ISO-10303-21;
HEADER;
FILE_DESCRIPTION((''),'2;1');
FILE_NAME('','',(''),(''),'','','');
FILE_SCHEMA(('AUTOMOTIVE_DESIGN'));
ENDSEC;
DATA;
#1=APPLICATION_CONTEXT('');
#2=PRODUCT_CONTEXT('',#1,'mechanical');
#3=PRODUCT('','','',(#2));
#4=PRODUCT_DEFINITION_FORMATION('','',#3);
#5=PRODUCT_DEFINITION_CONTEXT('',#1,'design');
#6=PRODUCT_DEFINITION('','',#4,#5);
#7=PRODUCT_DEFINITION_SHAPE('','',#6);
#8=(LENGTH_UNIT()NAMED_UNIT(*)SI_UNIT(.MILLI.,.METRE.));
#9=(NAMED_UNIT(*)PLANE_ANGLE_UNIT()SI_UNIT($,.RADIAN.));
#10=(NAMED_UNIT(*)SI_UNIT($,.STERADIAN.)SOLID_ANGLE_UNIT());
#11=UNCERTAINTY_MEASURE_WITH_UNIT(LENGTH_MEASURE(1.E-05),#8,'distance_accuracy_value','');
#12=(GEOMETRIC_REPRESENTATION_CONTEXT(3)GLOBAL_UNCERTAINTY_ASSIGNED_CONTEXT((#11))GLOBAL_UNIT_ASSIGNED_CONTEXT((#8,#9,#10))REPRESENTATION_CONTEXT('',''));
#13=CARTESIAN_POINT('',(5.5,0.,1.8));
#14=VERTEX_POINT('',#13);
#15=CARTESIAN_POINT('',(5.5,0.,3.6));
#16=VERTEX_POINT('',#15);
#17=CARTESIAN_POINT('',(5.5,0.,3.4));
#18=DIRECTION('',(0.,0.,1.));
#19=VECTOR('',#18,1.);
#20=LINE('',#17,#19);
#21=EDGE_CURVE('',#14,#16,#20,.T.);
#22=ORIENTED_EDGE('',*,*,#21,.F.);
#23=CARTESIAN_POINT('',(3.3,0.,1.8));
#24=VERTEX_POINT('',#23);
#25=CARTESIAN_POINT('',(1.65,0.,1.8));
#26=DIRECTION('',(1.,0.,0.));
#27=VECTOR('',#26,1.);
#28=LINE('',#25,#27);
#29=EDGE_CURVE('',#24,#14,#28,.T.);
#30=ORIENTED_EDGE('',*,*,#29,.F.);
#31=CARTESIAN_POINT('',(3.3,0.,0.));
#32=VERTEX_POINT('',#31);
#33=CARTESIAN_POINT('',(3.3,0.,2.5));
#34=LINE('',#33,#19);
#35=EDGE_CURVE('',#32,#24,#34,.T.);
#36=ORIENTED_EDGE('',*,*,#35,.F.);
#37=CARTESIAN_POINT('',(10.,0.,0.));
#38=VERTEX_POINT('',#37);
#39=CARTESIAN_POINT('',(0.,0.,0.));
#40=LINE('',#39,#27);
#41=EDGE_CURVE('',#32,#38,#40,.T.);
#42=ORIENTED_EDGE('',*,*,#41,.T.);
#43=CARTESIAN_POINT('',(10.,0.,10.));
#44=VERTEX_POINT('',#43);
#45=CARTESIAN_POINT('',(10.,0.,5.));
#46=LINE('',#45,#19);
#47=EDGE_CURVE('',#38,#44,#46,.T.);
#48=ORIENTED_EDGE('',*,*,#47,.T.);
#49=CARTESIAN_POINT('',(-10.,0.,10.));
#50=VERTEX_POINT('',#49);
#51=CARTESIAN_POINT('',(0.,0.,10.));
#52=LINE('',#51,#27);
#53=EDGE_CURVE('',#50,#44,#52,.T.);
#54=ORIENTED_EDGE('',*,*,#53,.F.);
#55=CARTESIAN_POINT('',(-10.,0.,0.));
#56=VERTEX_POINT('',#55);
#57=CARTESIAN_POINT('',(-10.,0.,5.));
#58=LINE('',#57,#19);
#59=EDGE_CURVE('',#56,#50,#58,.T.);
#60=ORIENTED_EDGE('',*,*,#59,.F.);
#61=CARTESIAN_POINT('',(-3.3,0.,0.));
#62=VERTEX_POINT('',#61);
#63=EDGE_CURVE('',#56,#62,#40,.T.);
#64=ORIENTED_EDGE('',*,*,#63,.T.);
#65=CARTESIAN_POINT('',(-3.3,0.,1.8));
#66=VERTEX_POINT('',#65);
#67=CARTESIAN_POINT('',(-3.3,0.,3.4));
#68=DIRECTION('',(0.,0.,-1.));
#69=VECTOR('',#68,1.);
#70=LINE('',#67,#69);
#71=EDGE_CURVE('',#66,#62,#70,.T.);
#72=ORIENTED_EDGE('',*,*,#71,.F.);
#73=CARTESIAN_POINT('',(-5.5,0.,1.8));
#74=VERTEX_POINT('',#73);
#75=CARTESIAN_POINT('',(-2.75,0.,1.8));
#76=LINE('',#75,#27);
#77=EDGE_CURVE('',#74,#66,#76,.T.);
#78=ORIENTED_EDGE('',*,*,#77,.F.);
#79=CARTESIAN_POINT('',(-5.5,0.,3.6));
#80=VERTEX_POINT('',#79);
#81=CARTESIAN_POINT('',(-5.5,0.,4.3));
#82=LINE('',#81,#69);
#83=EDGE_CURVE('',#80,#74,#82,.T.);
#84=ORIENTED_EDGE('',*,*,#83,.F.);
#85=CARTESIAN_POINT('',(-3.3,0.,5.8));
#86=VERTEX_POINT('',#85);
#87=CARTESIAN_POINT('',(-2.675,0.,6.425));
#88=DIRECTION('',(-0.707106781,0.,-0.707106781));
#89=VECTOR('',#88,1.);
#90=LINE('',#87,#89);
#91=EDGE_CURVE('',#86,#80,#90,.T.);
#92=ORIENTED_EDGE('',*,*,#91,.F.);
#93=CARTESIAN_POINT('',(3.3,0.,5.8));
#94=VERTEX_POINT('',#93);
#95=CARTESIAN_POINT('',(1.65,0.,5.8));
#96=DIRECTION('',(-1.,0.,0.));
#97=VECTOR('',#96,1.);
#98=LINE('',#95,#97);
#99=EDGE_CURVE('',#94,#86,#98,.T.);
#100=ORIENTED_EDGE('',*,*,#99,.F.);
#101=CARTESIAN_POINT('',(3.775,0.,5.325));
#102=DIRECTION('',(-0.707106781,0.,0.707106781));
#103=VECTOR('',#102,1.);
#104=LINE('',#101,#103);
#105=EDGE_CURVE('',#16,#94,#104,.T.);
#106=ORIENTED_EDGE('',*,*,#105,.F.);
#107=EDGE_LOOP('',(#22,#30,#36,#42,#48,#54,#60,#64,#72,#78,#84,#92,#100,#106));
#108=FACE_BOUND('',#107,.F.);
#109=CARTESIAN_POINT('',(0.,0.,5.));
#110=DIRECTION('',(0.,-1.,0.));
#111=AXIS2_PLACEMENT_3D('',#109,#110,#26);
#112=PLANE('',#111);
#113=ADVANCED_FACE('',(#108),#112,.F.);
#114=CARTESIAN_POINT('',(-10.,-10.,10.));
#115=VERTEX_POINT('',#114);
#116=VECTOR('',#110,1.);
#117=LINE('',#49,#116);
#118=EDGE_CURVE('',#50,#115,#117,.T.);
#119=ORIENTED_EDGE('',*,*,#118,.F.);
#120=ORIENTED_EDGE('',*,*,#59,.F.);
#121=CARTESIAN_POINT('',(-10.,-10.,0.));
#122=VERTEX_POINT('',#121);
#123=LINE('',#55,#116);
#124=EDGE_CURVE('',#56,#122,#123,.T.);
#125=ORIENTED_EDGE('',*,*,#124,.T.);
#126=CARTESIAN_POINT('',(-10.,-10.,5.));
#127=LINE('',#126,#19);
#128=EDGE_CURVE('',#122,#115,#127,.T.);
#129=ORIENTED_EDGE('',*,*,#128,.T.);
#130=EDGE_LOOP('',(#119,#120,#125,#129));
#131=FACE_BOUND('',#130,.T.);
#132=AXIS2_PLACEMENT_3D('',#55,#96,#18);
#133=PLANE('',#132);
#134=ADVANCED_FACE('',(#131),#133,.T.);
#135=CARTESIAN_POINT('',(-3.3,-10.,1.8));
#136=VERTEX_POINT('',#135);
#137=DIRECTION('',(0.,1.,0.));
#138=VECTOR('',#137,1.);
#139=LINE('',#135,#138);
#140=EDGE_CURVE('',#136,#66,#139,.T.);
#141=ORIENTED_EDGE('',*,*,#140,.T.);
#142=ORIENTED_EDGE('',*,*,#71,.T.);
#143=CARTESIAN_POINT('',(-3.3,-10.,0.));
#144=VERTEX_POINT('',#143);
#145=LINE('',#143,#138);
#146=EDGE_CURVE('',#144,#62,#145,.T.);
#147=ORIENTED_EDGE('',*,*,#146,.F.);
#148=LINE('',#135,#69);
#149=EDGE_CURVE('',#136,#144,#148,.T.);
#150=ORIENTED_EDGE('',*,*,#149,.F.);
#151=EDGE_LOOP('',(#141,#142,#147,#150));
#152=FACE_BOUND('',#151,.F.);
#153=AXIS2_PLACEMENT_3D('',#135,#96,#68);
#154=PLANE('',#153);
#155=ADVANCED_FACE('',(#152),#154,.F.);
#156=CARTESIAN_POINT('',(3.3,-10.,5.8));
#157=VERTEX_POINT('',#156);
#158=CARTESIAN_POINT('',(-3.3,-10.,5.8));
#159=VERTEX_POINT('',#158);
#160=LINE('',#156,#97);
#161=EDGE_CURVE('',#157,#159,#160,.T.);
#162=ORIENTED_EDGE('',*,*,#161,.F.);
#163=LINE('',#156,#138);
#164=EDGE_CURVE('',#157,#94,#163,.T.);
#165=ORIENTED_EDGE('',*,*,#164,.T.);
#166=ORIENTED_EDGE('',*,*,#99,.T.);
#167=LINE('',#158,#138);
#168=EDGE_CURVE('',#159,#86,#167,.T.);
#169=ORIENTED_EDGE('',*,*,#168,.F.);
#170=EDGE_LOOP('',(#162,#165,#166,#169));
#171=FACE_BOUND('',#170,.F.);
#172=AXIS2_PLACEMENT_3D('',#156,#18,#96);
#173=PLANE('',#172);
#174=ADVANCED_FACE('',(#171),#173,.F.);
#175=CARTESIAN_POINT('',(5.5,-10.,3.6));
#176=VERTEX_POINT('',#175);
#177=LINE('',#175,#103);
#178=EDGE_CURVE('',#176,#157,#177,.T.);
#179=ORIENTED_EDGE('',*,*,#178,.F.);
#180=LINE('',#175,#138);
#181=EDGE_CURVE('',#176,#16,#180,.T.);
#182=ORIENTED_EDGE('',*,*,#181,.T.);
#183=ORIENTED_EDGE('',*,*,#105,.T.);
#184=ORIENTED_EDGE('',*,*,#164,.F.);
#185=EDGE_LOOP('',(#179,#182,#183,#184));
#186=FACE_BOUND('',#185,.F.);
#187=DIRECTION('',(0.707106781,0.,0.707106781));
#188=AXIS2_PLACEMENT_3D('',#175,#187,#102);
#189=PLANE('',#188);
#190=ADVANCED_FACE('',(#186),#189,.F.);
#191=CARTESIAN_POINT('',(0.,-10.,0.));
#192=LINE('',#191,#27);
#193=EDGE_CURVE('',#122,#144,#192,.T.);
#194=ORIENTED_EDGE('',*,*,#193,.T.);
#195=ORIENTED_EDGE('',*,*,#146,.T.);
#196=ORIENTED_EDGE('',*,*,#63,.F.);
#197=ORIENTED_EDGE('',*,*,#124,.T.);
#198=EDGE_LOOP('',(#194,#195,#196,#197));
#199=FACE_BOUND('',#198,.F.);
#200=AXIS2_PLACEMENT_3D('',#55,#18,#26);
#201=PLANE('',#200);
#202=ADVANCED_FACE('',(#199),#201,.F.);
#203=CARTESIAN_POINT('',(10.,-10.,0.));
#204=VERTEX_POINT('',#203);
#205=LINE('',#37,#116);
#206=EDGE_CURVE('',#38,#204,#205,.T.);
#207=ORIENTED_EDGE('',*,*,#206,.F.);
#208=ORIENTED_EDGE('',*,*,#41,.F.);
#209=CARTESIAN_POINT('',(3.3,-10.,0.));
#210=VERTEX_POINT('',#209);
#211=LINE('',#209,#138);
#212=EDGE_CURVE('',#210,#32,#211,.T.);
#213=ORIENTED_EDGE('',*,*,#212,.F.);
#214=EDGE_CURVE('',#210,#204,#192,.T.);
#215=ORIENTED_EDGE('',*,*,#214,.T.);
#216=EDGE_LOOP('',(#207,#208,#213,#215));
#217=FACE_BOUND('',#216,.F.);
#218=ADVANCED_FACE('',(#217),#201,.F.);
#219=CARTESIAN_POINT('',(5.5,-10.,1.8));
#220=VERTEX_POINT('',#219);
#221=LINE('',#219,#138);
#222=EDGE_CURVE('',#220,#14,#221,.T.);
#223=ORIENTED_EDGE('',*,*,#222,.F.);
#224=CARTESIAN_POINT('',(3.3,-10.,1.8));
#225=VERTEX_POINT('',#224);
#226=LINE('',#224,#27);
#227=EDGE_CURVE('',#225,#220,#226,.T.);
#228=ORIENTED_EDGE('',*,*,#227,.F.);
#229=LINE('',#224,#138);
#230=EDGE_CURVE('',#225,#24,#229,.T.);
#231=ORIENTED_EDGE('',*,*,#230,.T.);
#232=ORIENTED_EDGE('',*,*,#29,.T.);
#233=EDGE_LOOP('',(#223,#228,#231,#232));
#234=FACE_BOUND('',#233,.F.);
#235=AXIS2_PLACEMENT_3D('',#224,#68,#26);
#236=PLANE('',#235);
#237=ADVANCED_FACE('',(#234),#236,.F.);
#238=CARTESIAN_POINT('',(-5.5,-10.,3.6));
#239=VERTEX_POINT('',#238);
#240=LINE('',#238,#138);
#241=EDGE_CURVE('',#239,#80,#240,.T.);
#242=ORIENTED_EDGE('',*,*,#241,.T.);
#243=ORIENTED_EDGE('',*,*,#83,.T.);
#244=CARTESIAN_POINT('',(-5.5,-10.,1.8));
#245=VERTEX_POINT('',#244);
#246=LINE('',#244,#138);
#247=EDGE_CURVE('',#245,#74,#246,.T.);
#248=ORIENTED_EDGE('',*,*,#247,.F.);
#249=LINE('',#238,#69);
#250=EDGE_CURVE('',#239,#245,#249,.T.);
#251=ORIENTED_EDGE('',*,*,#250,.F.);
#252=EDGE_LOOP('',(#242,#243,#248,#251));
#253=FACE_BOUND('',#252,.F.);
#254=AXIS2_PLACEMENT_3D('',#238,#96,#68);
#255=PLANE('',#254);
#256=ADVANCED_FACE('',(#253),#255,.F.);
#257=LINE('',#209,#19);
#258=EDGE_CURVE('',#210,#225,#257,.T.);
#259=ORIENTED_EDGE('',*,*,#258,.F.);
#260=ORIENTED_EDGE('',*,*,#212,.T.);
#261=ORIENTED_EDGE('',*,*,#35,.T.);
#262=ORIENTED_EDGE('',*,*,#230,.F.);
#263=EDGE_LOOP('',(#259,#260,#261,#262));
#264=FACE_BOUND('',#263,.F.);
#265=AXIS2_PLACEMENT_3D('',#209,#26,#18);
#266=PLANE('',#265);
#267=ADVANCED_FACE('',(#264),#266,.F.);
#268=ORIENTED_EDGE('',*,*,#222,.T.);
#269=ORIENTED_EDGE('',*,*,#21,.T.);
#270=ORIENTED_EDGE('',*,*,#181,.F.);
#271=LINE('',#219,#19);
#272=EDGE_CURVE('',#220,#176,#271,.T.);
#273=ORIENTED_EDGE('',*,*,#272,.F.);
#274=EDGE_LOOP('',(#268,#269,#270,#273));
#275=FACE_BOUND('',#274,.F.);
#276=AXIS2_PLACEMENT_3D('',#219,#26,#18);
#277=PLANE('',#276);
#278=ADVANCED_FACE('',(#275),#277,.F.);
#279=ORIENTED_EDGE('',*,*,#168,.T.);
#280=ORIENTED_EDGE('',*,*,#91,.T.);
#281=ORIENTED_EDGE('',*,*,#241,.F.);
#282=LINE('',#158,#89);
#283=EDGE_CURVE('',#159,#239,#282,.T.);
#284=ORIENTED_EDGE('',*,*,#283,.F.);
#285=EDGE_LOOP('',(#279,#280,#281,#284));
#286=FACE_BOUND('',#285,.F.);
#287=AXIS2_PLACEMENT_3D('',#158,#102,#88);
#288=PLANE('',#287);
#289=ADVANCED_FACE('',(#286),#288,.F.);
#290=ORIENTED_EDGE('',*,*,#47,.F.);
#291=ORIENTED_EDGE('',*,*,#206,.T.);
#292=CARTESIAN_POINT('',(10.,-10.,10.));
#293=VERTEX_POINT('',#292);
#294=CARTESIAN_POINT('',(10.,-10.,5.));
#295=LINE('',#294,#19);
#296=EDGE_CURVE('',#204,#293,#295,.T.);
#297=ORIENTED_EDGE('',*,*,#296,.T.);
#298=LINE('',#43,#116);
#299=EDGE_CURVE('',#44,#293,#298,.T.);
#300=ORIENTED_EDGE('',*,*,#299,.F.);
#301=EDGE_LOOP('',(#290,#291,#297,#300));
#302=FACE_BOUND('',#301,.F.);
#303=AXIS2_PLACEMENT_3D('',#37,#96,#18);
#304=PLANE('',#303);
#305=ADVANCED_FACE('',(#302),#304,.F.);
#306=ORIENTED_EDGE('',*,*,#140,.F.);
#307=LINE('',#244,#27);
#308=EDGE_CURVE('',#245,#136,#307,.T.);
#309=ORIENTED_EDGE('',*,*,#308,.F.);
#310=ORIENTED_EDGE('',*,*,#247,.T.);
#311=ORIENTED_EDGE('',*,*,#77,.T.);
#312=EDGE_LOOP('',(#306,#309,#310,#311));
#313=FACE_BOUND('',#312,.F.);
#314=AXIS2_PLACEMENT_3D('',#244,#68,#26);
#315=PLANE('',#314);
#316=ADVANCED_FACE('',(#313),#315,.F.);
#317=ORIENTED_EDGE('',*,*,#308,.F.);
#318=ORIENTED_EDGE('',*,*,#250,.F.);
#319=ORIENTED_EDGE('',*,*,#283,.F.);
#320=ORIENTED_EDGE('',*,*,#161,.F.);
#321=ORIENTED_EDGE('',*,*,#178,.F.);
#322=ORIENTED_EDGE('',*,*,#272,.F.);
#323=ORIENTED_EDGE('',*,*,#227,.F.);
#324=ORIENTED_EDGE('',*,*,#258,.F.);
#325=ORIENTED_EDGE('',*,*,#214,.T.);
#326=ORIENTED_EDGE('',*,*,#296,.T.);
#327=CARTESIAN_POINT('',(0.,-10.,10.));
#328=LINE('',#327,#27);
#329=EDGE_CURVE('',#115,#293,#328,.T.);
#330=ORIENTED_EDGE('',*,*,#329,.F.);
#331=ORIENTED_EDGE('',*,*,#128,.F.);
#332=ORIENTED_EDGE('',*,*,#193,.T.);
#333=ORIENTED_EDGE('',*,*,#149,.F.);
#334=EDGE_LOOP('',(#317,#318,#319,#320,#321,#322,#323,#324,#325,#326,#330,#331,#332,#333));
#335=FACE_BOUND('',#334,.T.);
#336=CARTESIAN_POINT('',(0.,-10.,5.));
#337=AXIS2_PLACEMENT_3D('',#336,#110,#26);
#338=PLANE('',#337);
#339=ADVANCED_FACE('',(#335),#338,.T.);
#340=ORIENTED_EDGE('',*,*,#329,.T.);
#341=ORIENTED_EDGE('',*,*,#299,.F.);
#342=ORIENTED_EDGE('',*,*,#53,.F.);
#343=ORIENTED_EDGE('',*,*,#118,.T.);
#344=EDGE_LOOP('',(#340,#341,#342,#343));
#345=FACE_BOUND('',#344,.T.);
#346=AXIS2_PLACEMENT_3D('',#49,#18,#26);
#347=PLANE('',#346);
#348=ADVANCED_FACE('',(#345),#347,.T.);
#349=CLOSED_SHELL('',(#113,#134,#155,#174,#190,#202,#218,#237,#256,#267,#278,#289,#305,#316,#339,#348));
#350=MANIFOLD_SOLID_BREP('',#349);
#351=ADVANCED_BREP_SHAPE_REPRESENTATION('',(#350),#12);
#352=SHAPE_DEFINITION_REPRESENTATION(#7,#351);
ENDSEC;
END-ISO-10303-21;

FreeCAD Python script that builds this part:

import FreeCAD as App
import Part
import Sketcher


def add_polygon(sketch, points):
    """Adds a closed chain of lines whose ends are joined by coincident constraints."""
    first, n = sketch.GeometryCount, len(points)
    for a, b in zip(points, points[1:] + points[:1]):
        sketch.addGeometry(Part.LineSegment(App.Vector(*a, 0), App.Vector(*b, 0)), False)
    for i in range(n):
        sketch.addConstraint(Sketcher.Constraint("Coincident", first + i, 2, first + (i + 1) % n, 1))

doc = App.newDocument("Part")
params = doc.addObject("Spreadsheet::Sheet", "Params")
for row, (alias, value) in enumerate([
    ("sketch1_width", "20 mm"),
    ("sketch1_height", "10 mm"),
    ("pad1_length", "10 mm"),
    ("sketch2_width", "6.6 mm"),
    ("sketch2_width2", "2.2 mm"),
    ("sketch2_height", "1.8 mm"),
], start=1):
    params.set(f"A{row}", alias)
    params.set(f"B{row}", "=" + value)
    params.setAlias(f"B{row}", alias)

body = doc.addObject("PartDesign::Body", "Body")

# Sketch on XZ plane
sketch1 = doc.addObject("Sketcher::SketchObject", "Sketch")
body.addObject(sketch1)
sketch1.AttachmentSupport = (doc.XZ_Plane, [""])
sketch1.MapMode = "FlatFace"
add_polygon(sketch1, [(-10, 10), (-10, 0), (10, 0), (10, 10)])  # lines 0-3
sketch1.addConstraint(Sketcher.Constraint("Vertical", 0))
sketch1.addConstraint(Sketcher.Constraint("Horizontal", 1))
sketch1.addConstraint(Sketcher.Constraint("Vertical", 2))
sketch1.addConstraint(Sketcher.Constraint("Horizontal", 3))
sketch1.addConstraint(Sketcher.Constraint("Symmetric", 0, 2, 1, 2, -1, 1))
sketch1.addConstraint(Sketcher.Constraint("DistanceX", 1, 1, 1, 2, 20.0))
sketch1.addConstraint(Sketcher.Constraint("DistanceY", 0, 2, 0, 1, 10.0))
sketch1.setExpression("Constraints[9]", "Params.sketch1_width")
sketch1.setExpression("Constraints[10]", "Params.sketch1_height")
pad1 = doc.addObject("PartDesign::Pad", "Pad")
body.addObject(pad1)
pad1.Profile = sketch1
pad1.setExpression("Length", "Params.pad1_length")

# Sketch on XZ plane
sketch2 = doc.addObject("Sketcher::SketchObject", "Sketch001")
body.addObject(sketch2)
sketch2.AttachmentSupport = (doc.XZ_Plane, [""])
sketch2.MapMode = "FlatFace"
sketch2.AttachmentOffset = App.Placement(App.Vector(0, 0, 10), App.Rotation())
add_polygon(sketch2, [(-3.3, 0), (3.3, 0), (3.3, 1.8), (5.5, 1.8), (5.5, 3.6), (3.3, 5.8), (-3.3, 5.8), (-5.5, 3.6), (-5.5, 1.8), (-3.3, 1.8)])  # lines 0-9
sketch2.addConstraint(Sketcher.Constraint("Horizontal", 0))
sketch2.addConstraint(Sketcher.Constraint("Vertical", 1))
sketch2.addConstraint(Sketcher.Constraint("Horizontal", 2))
sketch2.addConstraint(Sketcher.Constraint("Vertical", 3))
sketch2.addConstraint(Sketcher.Constraint("Horizontal", 5))
sketch2.addConstraint(Sketcher.Constraint("Vertical", 7))
sketch2.addConstraint(Sketcher.Constraint("Horizontal", 8))
sketch2.addConstraint(Sketcher.Constraint("Vertical", 9))
sketch2.addConstraint(Sketcher.Constraint("Symmetric", 0, 2, 9, 2, -1, 1))
sketch2.addConstraint(Sketcher.Constraint("Symmetric", 3, 2, 6, 2, -2))
sketch2.addConstraint(Sketcher.Constraint("Perpendicular", 4, 6))
sketch2.addConstraint(Sketcher.Constraint("Horizontal", 2, 2, 7, 2))
sketch2.addConstraint(Sketcher.Constraint("Vertical", 1, 2, 4, 2))
sketch2.addConstraint(Sketcher.Constraint("Vertical", 5, 2, 8, 2))
sketch2.addConstraint(Sketcher.Constraint("Equal", 1, 3))
sketch2.addConstraint(Sketcher.Constraint("DistanceX", 0, 1, 0, 2, 6.6))
sketch2.addConstraint(Sketcher.Constraint("DistanceX", 2, 1, 2, 2, 2.2))
sketch2.addConstraint(Sketcher.Constraint("DistanceY", 1, 1, 1, 2, 1.8))
sketch2.setExpression("Constraints[25]", "Params.sketch2_width")
sketch2.setExpression("Constraints[26]", "Params.sketch2_width2")
sketch2.setExpression("Constraints[27]", "Params.sketch2_height")
pocket1 = doc.addObject("PartDesign::Pocket", "Pocket")
body.addObject(pocket1)
pocket1.Profile = sketch2
pocket1.Type = "ThroughAll"

doc.recompute()
